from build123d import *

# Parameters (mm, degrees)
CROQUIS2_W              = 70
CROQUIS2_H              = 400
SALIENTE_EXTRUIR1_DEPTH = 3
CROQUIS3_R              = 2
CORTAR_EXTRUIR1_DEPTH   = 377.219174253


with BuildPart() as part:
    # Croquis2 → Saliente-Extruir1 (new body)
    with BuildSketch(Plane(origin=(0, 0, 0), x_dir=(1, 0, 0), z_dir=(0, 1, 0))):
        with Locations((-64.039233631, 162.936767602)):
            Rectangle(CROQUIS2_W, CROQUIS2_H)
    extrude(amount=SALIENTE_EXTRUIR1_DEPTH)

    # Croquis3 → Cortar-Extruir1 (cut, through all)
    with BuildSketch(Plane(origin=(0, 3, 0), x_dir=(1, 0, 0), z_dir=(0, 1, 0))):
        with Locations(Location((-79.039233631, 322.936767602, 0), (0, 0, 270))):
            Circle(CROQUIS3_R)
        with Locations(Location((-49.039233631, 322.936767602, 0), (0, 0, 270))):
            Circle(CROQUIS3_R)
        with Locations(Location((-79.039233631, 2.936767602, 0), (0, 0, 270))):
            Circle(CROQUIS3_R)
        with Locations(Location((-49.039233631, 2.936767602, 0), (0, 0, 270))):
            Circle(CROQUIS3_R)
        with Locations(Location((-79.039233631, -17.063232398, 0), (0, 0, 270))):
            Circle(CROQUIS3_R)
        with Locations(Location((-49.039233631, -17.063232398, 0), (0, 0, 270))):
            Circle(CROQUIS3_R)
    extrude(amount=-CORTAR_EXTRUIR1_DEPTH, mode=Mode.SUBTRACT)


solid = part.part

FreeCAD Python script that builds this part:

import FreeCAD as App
import Part
import Sketcher
from FreeCAD import Vector


def add_polygon(sketch, points):
    """Adds a closed chain of lines whose ends are joined by coincident constraints."""
    first, n = sketch.GeometryCount, len(points)
    for a, b in zip(points, points[1:] + points[:1]):
        sketch.addGeometry(Part.LineSegment(App.Vector(*a, 0), App.Vector(*b, 0)), False)
    for i in range(n):
        sketch.addConstraint(Sketcher.Constraint("Coincident", first + i, 2, first + (i + 1) % n, 1))

doc = App.newDocument("Part")
body = doc.addObject("PartDesign::Body", "Body")

# Sketch on XZ plane
sketch1 = body.newObject("Sketcher::SketchObject", "Sketch")
sketch1.AttachmentSupport = (doc.getObject("XZ_Plane"), [""])
sketch1.MapMode = "FlatFace"
add_polygon(sketch1, [(-99, -363), (-99, 37), (-29, 37), (-29, -363)])  # lines 0-3
sketch1.addConstraint([
    Sketcher.Constraint("Vertical", 0),
    Sketcher.Constraint("Horizontal", 1),
    Sketcher.Constraint("Vertical", 2),
    Sketcher.Constraint("Horizontal", 3),
    Sketcher.Constraint("DistanceX", 1, 1, 1, 2, 70.0),
    Sketcher.Constraint("DistanceY", 0, 1, 0, 2, 400.0),
    Sketcher.Constraint("DistanceX", 0, 2, -1, 1, 99.039234),
    Sketcher.Constraint("DistanceY", -1, 1, 0, 2, 37.063232),
])
pad1 = body.newObject("PartDesign::Pad", "Pad")
pad1.Profile = sketch1
pad1.Length = 3
pad1.Reversed = True

# Sketch on XZ plane
sketch2 = body.newObject("Sketcher::SketchObject", "Sketch001")
sketch2.AttachmentSupport = (doc.getObject("XZ_Plane"), [""])
sketch2.MapMode = "FlatFace"
sketch2.AttachmentOffset = App.Placement(Vector(0, 0, -3), App.Rotation())
sketch2.addGeometry([
    Part.Circle(Vector(-79, -322.9, 0), Vector(0, 0, 1), 2),  # 0
    Part.Circle(Vector(-49, -322.9, 0), Vector(0, 0, 1), 2),  # 1
    Part.Circle(Vector(-79, -2.9, 0), Vector(0, 0, 1), 2),  # 2
    Part.Circle(Vector(-49, -2.9, 0), Vector(0, 0, 1), 2),  # 3
    Part.Circle(Vector(-79, 17.1, 0), Vector(0, 0, 1), 2),  # 4
    Part.Circle(Vector(-49, 17.1, 0), Vector(0, 0, 1), 2),  # 5
], False)
sketch2.addConstraint([
    Sketcher.Constraint("Equal", 0, 1),
    Sketcher.Constraint("Equal", 1, 2),
    Sketcher.Constraint("Equal", 2, 3),
    Sketcher.Constraint("Equal", 3, 4),
    Sketcher.Constraint("Equal", 4, 5),
    Sketcher.Constraint("Horizontal", 0, 3, 1, 3),
    Sketcher.Constraint("Horizontal", 2, 3, 3, 3),
    Sketcher.Constraint("Horizontal", 4, 3, 5, 3),
    Sketcher.Constraint("Vertical", 0, 3, 2, 3),
    Sketcher.Constraint("Vertical", 1, 3, 3, 3),
    Sketcher.Constraint("Vertical", 2, 3, 4, 3),
    Sketcher.Constraint("Vertical", 3, 3, 5, 3),
    Sketcher.Constraint("Diameter", 0, 4.0),
    Sketcher.Constraint("DistanceX", 0, 3, 1, 3, 30.0),
    Sketcher.Constraint("DistanceY", 0, 3, 2, 3, 320.0),
    Sketcher.Constraint("DistanceY", 2, 3, 4, 3, 20.0),
    Sketcher.Constraint("DistanceX", 0, 3, -1, 1, 79.039234),
    Sketcher.Constraint("DistanceY", 0, 3, -1, 1, 322.936768),
])
pocket1 = body.newObject("PartDesign::Pocket", "Pocket")
pocket1.Profile = sketch2
pocket1.Type = "ThroughAll"
pocket1.Reversed = True

doc.recompute()
